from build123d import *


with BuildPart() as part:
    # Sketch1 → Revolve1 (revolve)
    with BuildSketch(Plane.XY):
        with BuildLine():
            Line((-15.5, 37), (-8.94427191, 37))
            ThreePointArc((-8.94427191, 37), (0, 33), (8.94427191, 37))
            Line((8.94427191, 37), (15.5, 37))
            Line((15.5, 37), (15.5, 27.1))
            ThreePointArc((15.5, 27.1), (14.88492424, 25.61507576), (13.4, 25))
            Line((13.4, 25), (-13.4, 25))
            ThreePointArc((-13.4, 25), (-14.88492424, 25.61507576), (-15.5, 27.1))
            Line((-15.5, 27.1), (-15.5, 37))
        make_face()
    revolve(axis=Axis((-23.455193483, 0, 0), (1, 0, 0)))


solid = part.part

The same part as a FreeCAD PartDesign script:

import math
import FreeCAD as App
import Part
import Sketcher
from FreeCAD import Vector
Q = App.Units.Quantity

doc = App.newDocument("Part")
body = doc.addObject("PartDesign::Body", "Body")

# Sketch on XY plane
sketch1 = body.newObject("Sketcher::SketchObject", "Sketch")
sketch1.AttachmentSupport = (doc.getObject("XY_Plane"), [""])
sketch1.MapMode = "FlatFace"
sketch1.addGeometry(Part.LineSegment(Vector(-8.9, 37, 0), Vector(-15.5, 37, 0)), False)
sketch1.addGeometry(Part.LineSegment(Vector(-15.5, 37, 0), Vector(-15.5, 27.1, 0)), False)
sketch1.addGeometry(Part.ArcOfCircle(Part.Circle(Vector(-13.4, 27.1, 0), Vector(0, 0, 1), 2.1), math.radians(-180), math.radians(-90)), False)
sketch1.addGeometry(Part.LineSegment(Vector(-13.4, 25, 0), Vector(13.4, 25, 0)), False)
sketch1.addGeometry(Part.ArcOfCircle(Part.Circle(Vector(13.4, 27.1, 0), Vector(0, 0, 1), 2.1), math.radians(-90), math.radians(0)), False)
sketch1.addGeometry(Part.LineSegment(Vector(15.5, 27.1, 0), Vector(15.5, 37, 0)), False)
sketch1.addGeometry(Part.LineSegment(Vector(15.5, 37, 0), Vector(8.9, 37, 0)), False)
sketch1.addGeometry(Part.ArcOfCircle(Part.Circle(Vector(0, 45, 0), Vector(0, 0, 1), 12), math.radians(-138), math.radians(-42)), False)
sketch1.addConstraint(Sketcher.Constraint("Coincident", 0, 2, 1, 1))
sketch1.addConstraint(Sketcher.Constraint("Tangent", 1, 2, 2, 1))
sketch1.addConstraint(Sketcher.Constraint("Tangent", 2, 2, 3, 1))
sketch1.addConstraint(Sketcher.Constraint("Tangent", 3, 2, 4, 1))
sketch1.addConstraint(Sketcher.Constraint("Tangent", 4, 2, 5, 1))
sketch1.addConstraint(Sketcher.Constraint("Coincident", 5, 2, 6, 1))
sketch1.addConstraint(Sketcher.Constraint("Coincident", 6, 2, 7, 2))
sketch1.addConstraint(Sketcher.Constraint("Coincident", 7, 1, 0, 1))
sketch1.addConstraint(Sketcher.Constraint("Horizontal", 0))
sketch1.addConstraint(Sketcher.Constraint("Vertical", 1))
sketch1.addConstraint(Sketcher.Constraint("Horizontal", 3))
sketch1.addConstraint(Sketcher.Constraint("Vertical", 5))
sketch1.addConstraint(Sketcher.Constraint("Horizontal", 6))
sketch1.addConstraint(Sketcher.Constraint("Equal", 2, 4))
sketch1.addConstraint(Sketcher.Constraint("Symmetric", 0, 2, 5, 2, -2))
sketch1.addConstraint(Sketcher.Constraint("PointOnObject", 7, 3, -2))
sketch1.addConstraint(Sketcher.Constraint("Radius", 7, Q("12 mm")))
sketch1.addConstraint(Sketcher.Constraint("Radius", 2, Q("2.1 mm")))
sketch1.addConstraint(Sketcher.Constraint("DistanceX", 3, 1, 3, 2, Q("26.8 mm")))
sketch1.addConstraint(Sketcher.Constraint("DistanceY", 1, 2, 1, 1, Q("9.9 mm")))
sketch1.addConstraint(Sketcher.Constraint("DistanceY", -1, 1, 7, 3, Q("45 mm")))
sketch1.addConstraint(Sketcher.Constraint("DistanceY", -1, 1, 0, 2, Q("37 mm")))
revolution = body.newObject("PartDesign::Revolution", "Revolution")
revolution.Profile = sketch1
revolution.ReferenceAxis = (sketch1, ["H_Axis"])
revolution.Angle = 360

doc.recompute()
